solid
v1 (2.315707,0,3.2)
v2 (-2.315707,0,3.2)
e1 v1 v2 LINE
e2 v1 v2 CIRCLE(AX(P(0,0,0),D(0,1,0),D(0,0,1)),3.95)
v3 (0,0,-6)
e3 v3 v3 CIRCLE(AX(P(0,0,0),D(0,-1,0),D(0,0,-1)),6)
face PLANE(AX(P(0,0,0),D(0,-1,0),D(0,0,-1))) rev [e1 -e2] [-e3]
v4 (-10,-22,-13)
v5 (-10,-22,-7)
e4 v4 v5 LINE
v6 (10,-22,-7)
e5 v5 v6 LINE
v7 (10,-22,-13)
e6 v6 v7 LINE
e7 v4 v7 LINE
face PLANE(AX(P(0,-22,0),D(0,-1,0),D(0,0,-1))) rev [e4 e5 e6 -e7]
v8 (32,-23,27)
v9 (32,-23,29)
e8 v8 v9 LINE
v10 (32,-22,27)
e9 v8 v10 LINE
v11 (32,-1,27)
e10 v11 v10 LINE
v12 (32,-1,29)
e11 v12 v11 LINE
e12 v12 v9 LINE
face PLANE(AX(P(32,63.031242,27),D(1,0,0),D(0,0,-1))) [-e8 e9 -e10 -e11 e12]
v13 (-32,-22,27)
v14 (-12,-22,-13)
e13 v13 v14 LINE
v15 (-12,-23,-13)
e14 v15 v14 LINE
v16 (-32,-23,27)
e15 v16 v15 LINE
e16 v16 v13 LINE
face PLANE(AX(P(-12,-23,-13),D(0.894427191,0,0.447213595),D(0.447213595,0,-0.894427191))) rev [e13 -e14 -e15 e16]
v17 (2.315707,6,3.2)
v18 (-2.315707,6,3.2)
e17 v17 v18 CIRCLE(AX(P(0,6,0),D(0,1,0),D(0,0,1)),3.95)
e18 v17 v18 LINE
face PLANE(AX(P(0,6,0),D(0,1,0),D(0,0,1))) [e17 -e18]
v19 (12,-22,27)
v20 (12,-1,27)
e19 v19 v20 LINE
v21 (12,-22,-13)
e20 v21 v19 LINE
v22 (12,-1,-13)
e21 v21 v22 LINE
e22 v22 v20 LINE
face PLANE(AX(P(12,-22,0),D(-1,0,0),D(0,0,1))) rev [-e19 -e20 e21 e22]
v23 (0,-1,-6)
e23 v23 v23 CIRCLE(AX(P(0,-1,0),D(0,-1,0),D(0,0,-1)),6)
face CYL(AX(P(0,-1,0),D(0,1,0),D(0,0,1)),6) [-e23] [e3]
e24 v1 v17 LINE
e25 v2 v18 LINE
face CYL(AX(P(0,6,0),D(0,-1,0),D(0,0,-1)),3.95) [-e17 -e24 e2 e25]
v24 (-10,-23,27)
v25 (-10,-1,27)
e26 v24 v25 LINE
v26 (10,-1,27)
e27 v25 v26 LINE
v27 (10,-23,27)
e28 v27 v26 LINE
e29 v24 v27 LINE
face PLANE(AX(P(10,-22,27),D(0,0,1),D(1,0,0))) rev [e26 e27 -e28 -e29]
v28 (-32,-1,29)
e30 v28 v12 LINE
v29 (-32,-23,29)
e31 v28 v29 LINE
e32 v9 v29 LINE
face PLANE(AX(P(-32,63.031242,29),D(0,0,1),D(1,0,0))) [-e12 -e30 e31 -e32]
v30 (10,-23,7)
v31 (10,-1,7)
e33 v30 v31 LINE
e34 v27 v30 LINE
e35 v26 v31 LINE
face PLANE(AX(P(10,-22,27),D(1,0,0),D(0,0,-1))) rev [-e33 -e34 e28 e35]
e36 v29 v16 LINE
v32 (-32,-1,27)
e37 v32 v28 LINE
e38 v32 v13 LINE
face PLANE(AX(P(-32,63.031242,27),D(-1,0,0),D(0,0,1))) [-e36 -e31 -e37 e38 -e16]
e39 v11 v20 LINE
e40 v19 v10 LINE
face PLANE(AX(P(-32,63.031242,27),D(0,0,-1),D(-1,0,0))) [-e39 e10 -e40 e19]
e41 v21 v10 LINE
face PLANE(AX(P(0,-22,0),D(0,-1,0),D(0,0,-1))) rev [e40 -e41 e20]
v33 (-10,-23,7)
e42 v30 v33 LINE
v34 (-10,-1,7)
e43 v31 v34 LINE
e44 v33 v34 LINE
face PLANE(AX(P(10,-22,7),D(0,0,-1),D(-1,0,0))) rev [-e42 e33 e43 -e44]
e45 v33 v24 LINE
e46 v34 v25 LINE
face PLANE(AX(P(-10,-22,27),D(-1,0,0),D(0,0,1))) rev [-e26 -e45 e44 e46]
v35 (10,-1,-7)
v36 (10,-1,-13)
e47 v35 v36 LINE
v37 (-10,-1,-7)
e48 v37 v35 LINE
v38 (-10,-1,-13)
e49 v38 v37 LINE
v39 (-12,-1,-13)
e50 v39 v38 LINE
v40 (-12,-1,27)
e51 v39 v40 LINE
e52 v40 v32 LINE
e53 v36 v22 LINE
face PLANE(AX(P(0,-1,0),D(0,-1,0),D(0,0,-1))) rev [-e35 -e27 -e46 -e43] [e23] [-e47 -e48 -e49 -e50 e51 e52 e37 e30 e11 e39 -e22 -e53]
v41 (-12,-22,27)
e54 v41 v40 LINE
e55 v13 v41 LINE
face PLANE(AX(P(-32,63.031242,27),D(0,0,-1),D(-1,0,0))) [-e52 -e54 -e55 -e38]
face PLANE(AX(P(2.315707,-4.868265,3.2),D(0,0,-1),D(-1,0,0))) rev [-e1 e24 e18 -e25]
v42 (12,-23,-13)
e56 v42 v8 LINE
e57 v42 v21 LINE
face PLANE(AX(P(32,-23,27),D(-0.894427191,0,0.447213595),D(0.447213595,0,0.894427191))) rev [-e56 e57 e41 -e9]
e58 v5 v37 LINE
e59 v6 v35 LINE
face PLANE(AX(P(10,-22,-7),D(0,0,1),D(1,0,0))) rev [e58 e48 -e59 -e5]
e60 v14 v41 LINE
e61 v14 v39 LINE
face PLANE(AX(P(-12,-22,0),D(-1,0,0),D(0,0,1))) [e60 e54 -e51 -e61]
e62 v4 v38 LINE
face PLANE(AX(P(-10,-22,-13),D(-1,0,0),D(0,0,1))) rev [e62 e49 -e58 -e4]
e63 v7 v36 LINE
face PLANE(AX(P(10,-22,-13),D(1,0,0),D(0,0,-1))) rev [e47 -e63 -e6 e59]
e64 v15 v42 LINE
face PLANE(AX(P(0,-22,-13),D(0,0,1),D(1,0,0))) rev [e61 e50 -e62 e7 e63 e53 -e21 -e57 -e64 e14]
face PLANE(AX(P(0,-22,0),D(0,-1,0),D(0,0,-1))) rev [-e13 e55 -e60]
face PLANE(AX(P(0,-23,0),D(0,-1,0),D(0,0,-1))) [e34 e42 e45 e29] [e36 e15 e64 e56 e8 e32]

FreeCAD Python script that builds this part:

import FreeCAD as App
import Part
import Sketcher
Q = App.Units.Quantity

doc = App.newDocument("Part")
body = doc.addObject("PartDesign::Body", "Body")

# Sketch on XZ plane
sketch1 = doc.addObject("Sketcher::SketchObject", "Sketch")
body.addObject(sketch1)
sketch1.AttachmentSupport = (doc.XZ_Plane, [""])
sketch1.MapMode = "FlatFace"
sketch1.addGeometry(Part.Circle(App.Vector(0, 0, 0), App.Vector(0, 0, 1), 4), False)
sketch1.addConstraint([
    Sketcher.Constraint("Coincident", 0, 3, -1, 1),
    Sketcher.Constraint("Diameter", 0, Q("7.9 mm")),
])
pad1 = doc.addObject("PartDesign::Pad", "Pad")
body.addObject(pad1)
pad1.Profile = sketch1
pad1.Length = 6
pad1.Reversed = True

# Sketch on XZ plane
sketch2 = doc.addObject("Sketcher::SketchObject", "Sketch001")
body.addObject(sketch2)
sketch2.AttachmentSupport = (doc.XZ_Plane, [""])
sketch2.MapMode = "FlatFace"
sketch2.addGeometry(Part.Circle(App.Vector(0, 0, 0), App.Vector(0, 0, 1), 6), False)
sketch2.addConstraint([
    Sketcher.Constraint("Coincident", 0, 3, -1, 1),
    Sketcher.Constraint("Diameter", 0, Q("12 mm")),
])
pad2 = doc.addObject("PartDesign::Pad", "Pad001")
body.addObject(pad2)
pad2.Profile = sketch2
pad2.Length = 1

# Sketch on XZ plane
sketch3 = doc.addObject("Sketcher::SketchObject", "Sketch002")
body.addObject(sketch3)
sketch3.AttachmentSupport = (doc.XZ_Plane, [""])
sketch3.MapMode = "FlatFace"
sketch3.AttachmentOffset = App.Placement(App.Vector(0, 0, 1), App.Rotation())
sketch3.addGeometry([
    Part.LineSegment(App.Vector(-12, 27, 0), App.Vector(-12, -13, 0)),
    Part.LineSegment(App.Vector(-12, -13, 0), App.Vector(12, -13, 0)),
    Part.LineSegment(App.Vector(12, -13, 0), App.Vector(12, 27, 0)),
    Part.LineSegment(App.Vector(12, 27, 0), App.Vector(-12, 27, 0)),
], False)
sketch3.addConstraint([
    Sketcher.Constraint("Coincident", 0, 2, 1, 1),
    Sketcher.Constraint("Coincident", 1, 2, 2, 1),
    Sketcher.Constraint("Coincident", 2, 2, 3, 1),
    Sketcher.Constraint("Coincident", 3, 2, 0, 1),
    Sketcher.Constraint("Vertical", 0),
    Sketcher.Constraint("Horizontal", 1),
    Sketcher.Constraint("Vertical", 2),
    Sketcher.Constraint("Horizontal", 3),
    Sketcher.Constraint("DistanceX", 1, 1, 1, 2, Q("24 mm")),
    Sketcher.Constraint("DistanceY", 0, 2, 0, 1, Q("40 mm")),
    Sketcher.Constraint("DistanceX", 0, 2, -1, 1, Q("12 mm")),
    Sketcher.Constraint("DistanceY", 0, 2, -1, 1, Q("13 mm")),
])
pad3 = doc.addObject("PartDesign::Pad", "Pad002")
body.addObject(pad3)
pad3.Profile = sketch3
pad3.Length = 21

# Sketch on XZ plane
sketch4 = doc.addObject("Sketcher::SketchObject", "Sketch003")
body.addObject(sketch4)
sketch4.AttachmentSupport = (doc.XZ_Plane, [""])
sketch4.MapMode = "FlatFace"
sketch4.AttachmentOffset = App.Placement(App.Vector(0, 0, 22), App.Rotation())
sketch4.addGeometry([
    Part.LineSegment(App.Vector(-32, 29, 0), App.Vector(-32, 27, 0)),
    Part.LineSegment(App.Vector(-32, 27, 0), App.Vector(32, 27, 0)),
    Part.LineSegment(App.Vector(32, 27, 0), App.Vector(32, 29, 0)),
    Part.LineSegment(App.Vector(32, 29, 0), App.Vector(-32, 29, 0)),
], False)
sketch4.addConstraint([
    Sketcher.Constraint("Coincident", 0, 2, 1, 1),
    Sketcher.Constraint("Coincident", 1, 2, 2, 1),
    Sketcher.Constraint("Coincident", 2, 2, 3, 1),
    Sketcher.Constraint("Coincident", 3, 2, 0, 1),
    Sketcher.Constraint("Vertical", 0),
    Sketcher.Constraint("Horizontal", 1),
    Sketcher.Constraint("Vertical", 2),
    Sketcher.Constraint("Horizontal", 3),
    Sketcher.Constraint("DistanceX", 1, 1, 1, 2, Q("64 mm")),
    Sketcher.Constraint("DistanceY", 0, 2, 0, 1, Q("2 mm")),
    Sketcher.Constraint("DistanceX", 0, 2, -1, 1, Q("32 mm")),
    Sketcher.Constraint("DistanceY", -1, 1, 0, 2, Q("27 mm")),
])
pad4 = doc.addObject("PartDesign::Pad", "Pad003")
body.addObject(pad4)
pad4.Profile = sketch4
pad4.Length = 21
pad4.Reversed = True

# Sketch on XZ plane
sketch5 = doc.addObject("Sketcher::SketchObject", "Sketch004")
body.addObject(sketch5)
sketch5.AttachmentSupport = (doc.XZ_Plane, [""])
sketch5.MapMode = "FlatFace"
sketch5.AttachmentOffset = App.Placement(App.Vector(0, 0, 1), App.Rotation())
sketch5.addGeometry([
    Part.LineSegment(App.Vector(-10, 7, 0), App.Vector(-10, 27, 0)),  # 0
    Part.LineSegment(App.Vector(-10, 27, 0), App.Vector(10, 27, 0)),  # 1
    Part.LineSegment(App.Vector(10, 27, 0), App.Vector(10, 7, 0)),  # 2
    Part.LineSegment(App.Vector(10, 7, 0), App.Vector(-10, 7, 0)),  # 3
    Part.LineSegment(App.Vector(-10, -13, 0), App.Vector(-10, -7, 0)),  # 4
    Part.LineSegment(App.Vector(-10, -7, 0), App.Vector(10, -7, 0)),  # 5
    Part.LineSegment(App.Vector(10, -7, 0), App.Vector(10, -13, 0)),  # 6
    Part.LineSegment(App.Vector(10, -13, 0), App.Vector(-10, -13, 0)),  # 7
], False)
sketch5.addConstraint([
    Sketcher.Constraint("Coincident", 0, 2, 1, 1),
    Sketcher.Constraint("Coincident", 1, 2, 2, 1),
    Sketcher.Constraint("Coincident", 2, 2, 3, 1),
    Sketcher.Constraint("Coincident", 3, 2, 0, 1),
    Sketcher.Constraint("Coincident", 4, 2, 5, 1),
    Sketcher.Constraint("Coincident", 5, 2, 6, 1),
    Sketcher.Constraint("Coincident", 6, 2, 7, 1),
    Sketcher.Constraint("Coincident", 7, 2, 4, 1),
    Sketcher.Constraint("Vertical", 0),
    Sketcher.Constraint("Horizontal", 1),
    Sketcher.Constraint("Vertical", 2),
    Sketcher.Constraint("Horizontal", 3),
    Sketcher.Constraint("Vertical", 4),
    Sketcher.Constraint("Horizontal", 5),
    Sketcher.Constraint("Vertical", 6),
    Sketcher.Constraint("Horizontal", 7),
    Sketcher.Constraint("Symmetric", 2, 2, 4, 2, -1, 1),
    Sketcher.Constraint("Vertical", 3, 2, 4, 2),
    Sketcher.Constraint("Vertical", 2, 2, 5, 2),
    Sketcher.Constraint("Equal", 7, 0),
    Sketcher.Constraint("DistanceX", 1, 1, 1, 2, Q("20 mm")),
    Sketcher.Constraint("DistanceY", 4, 1, 4, 2, Q("6 mm")),
    Sketcher.Constraint("DistanceY", -1, 1, 0, 2, Q("27 mm")),
])
pocket1 = doc.addObject("PartDesign::Pocket", "Pocket")
body.addObject(pocket1)
pocket1.Profile = sketch5
pocket1.Type = "ThroughAll"
pocket1.Reversed = True

# Sketch on XZ plane
sketch6 = doc.addObject("Sketcher::SketchObject", "Sketch005")
body.addObject(sketch6)
sketch6.AttachmentSupport = (doc.XZ_Plane, [""])
sketch6.MapMode = "FlatFace"
sketch6.AttachmentOffset = App.Placement(App.Vector(0, 0, -6), App.Rotation())
sketch6.addGeometry([
    Part.LineSegment(App.Vector(-2.3, 3.2, 0), App.Vector(-2.3, 4.7, 0)),
    Part.LineSegment(App.Vector(-2.3, 4.7, 0), App.Vector(2.3, 4.7, 0)),
    Part.LineSegment(App.Vector(2.3, 4.7, 0), App.Vector(2.3, 3.2, 0)),
    Part.LineSegment(App.Vector(2.3, 3.2, 0), App.Vector(-2.3, 3.2, 0)),
], False)
sketch6.addConstraint([
    Sketcher.Constraint("Coincident", 0, 2, 1, 1),
    Sketcher.Constraint("Coincident", 1, 2, 2, 1),
    Sketcher.Constraint("Coincident", 2, 2, 3, 1),
    Sketcher.Constraint("Coincident", 3, 2, 0, 1),
    Sketcher.Constraint("Vertical", 0),
    Sketcher.Constraint("Horizontal", 1),
    Sketcher.Constraint("Vertical", 2),
    Sketcher.Constraint("Horizontal", 3),
    Sketcher.Constraint("DistanceY", 0, 1, 0, 2, Q("1.5 mm")),
    Sketcher.Constraint("DistanceY", -1, 1, 0, 2, Q("4.7 mm")),
    Sketcher.Constraint("DistanceX", 1, 1, 1, 2, Q("4.631414 mm")),
    Sketcher.Constraint("DistanceX", 0, 2, -1, 1, Q("2.315707 mm")),
])
pocket2 = doc.addObject("PartDesign::Pocket", "Pocket001")
body.addObject(pocket2)
pocket2.Profile = sketch6
pocket2.Length = 6
pocket2.Reversed = True

# Sketch on XZ plane
sketch7 = doc.addObject("Sketcher::SketchObject", "Sketch006")
body.addObject(sketch7)
sketch7.AttachmentSupport = (doc.XZ_Plane, [""])
sketch7.MapMode = "FlatFace"
sketch7.AttachmentOffset = App.Placement(App.Vector(0, 0, 22), App.Rotation())
sketch7.addGeometry([
    Part.LineSegment(App.Vector(32, 29, 0), App.Vector(-32, 29, 0)),  # 0
    Part.LineSegment(App.Vector(-32, 29, 0), App.Vector(-32, 27, 0)),  # 1
    Part.LineSegment(App.Vector(-32, 27, 0), App.Vector(-12, -13, 0)),  # 2
    Part.LineSegment(App.Vector(-12, -13, 0), App.Vector(12, -13, 0)),  # 3
    Part.LineSegment(App.Vector(12, -13, 0), App.Vector(32, 27, 0)),  # 4
    Part.LineSegment(App.Vector(32, 27, 0), App.Vector(32, 29, 0)),  # 5
], False)
sketch7.addConstraint([
    Sketcher.Constraint("Coincident", 0, 2, 1, 1),
    Sketcher.Constraint("Coincident", 1, 2, 2, 1),
    Sketcher.Constraint("Coincident", 2, 2, 3, 1),
    Sketcher.Constraint("Coincident", 3, 2, 4, 1),
    Sketcher.Constraint("Coincident", 4, 2, 5, 1),
    Sketcher.Constraint("Coincident", 5, 2, 0, 1),
    Sketcher.Constraint("Horizontal", 0),
    Sketcher.Constraint("Vertical", 1),
    Sketcher.Constraint("Horizontal", 3),
    Sketcher.Constraint("Vertical", 5),
    Sketcher.Constraint("Symmetric", 1, 2, 4, 2, -2),
    Sketcher.Constraint("Equal", 2, 4),
    Sketcher.Constraint("DistanceX", 0, 2, 0, 1, Q("64 mm")),
    Sketcher.Constraint("DistanceX", 3, 1, 3, 2, Q("24 mm")),
    Sketcher.Constraint("DistanceY", 1, 2, 1, 1, Q("2 mm")),
    Sketcher.Constraint("DistanceY", -1, 1, 0, 2, Q("29 mm")),
    Sketcher.Constraint("DistanceY", 2, 2, -1, 1, Q("13 mm")),
])
pad5 = doc.addObject("PartDesign::Pad", "Pad004")
body.addObject(pad5)
pad5.Profile = sketch7
pad5.Length = 1

# Sketch on XZ plane
sketch8 = doc.addObject("Sketcher::SketchObject", "Sketch007")
body.addObject(sketch8)
sketch8.AttachmentSupport = (doc.XZ_Plane, [""])
sketch8.MapMode = "FlatFace"
sketch8.AttachmentOffset = App.Placement(App.Vector(0, 0, 22), App.Rotation())
sketch8.addGeometry([
    Part.LineSegment(App.Vector(-10, 7, 0), App.Vector(-10, 27, 0)),
    Part.LineSegment(App.Vector(-10, 27, 0), App.Vector(10, 27, 0)),
    Part.LineSegment(App.Vector(10, 27, 0), App.Vector(10, 7, 0)),
    Part.LineSegment(App.Vector(10, 7, 0), App.Vector(-10, 7, 0)),
], False)
sketch8.addConstraint([
    Sketcher.Constraint("Coincident", 0, 2, 1, 1),
    Sketcher.Constraint("Coincident", 1, 2, 2, 1),
    Sketcher.Constraint("Coincident", 2, 2, 3, 1),
    Sketcher.Constraint("Coincident", 3, 2, 0, 1),
    Sketcher.Constraint("Vertical", 0),
    Sketcher.Constraint("Horizontal", 1),
    Sketcher.Constraint("Vertical", 2),
    Sketcher.Constraint("Horizontal", 3),
    Sketcher.Constraint("Equal", 3, 0),
    Sketcher.Constraint("DistanceX", 1, 1, 1, 2, Q("20 mm")),
    Sketcher.Constraint("DistanceX", 0, 2, -1, 1, Q("10 mm")),
    Sketcher.Constraint("DistanceY", -1, 1, 0, 2, Q("27 mm")),
])
pocket3 = doc.addObject("PartDesign::Pocket", "Pocket002")
body.addObject(pocket3)
pocket3.Profile = sketch8
pocket3.Type = "ThroughAll"
pocket3.Reversed = True

doc.recompute()
